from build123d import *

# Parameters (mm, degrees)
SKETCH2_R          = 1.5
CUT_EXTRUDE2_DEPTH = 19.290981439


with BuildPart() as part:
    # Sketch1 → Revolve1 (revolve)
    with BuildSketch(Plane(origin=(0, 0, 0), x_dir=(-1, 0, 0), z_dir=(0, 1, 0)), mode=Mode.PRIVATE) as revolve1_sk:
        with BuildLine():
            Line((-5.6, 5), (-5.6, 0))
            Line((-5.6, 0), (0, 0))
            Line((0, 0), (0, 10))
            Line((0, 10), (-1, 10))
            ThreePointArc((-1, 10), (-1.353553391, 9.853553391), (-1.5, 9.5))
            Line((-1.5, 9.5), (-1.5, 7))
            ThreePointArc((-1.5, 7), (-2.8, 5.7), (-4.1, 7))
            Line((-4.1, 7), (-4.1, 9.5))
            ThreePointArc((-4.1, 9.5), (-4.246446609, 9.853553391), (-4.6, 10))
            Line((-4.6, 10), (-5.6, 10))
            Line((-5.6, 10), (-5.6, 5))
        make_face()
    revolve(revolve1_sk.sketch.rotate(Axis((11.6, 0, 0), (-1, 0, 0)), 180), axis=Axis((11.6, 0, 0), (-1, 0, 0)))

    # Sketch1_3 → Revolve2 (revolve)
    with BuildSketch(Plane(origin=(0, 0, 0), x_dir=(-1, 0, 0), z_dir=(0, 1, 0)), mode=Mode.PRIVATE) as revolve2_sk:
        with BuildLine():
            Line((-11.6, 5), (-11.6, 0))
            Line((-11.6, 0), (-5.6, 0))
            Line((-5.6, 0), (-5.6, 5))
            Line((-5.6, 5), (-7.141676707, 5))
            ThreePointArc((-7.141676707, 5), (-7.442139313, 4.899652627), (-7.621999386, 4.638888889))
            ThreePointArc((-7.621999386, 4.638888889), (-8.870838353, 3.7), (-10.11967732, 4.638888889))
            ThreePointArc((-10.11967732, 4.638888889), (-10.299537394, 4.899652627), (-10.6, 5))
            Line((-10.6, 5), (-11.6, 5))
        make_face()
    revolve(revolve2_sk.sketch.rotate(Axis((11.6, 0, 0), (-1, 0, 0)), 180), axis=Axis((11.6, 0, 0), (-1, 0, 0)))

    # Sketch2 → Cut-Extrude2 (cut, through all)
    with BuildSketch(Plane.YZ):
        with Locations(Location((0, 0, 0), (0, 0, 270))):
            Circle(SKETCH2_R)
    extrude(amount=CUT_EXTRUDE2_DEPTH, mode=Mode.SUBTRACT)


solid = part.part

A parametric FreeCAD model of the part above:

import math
import FreeCAD as App
import Part
import Sketcher

V = App.Vector
Q = App.Units.Quantity

doc = App.newDocument("Part")
params = doc.addObject("Spreadsheet::Sheet", "Params")
for row, (alias, value) in enumerate([
    ("sketch1_radius", "0.5 mm"),
    ("sketch1_radius2", "1.3 mm"),
    ("sketch1_width", "1 mm"),
    ("sketch1_height", "10 mm"),
    ("sketch1_height2", "2.5 mm"),
    ("revolution_angle", "360 deg"),
    ("sketch2_radius", "0.5 mm"),
    ("sketch2_radius2", "1.3 mm"),
    ("sketch2_width", "6 mm"),
    ("sketch2_width2", "1 mm"),
    ("sketch2_height", "5 mm"),
    ("revolution2_angle", "360 deg"),
    ("sketch3_diameter", "3 mm"),
], start=1):
    params.set(f"A{row}", alias)
    params.set(f"B{row}", "=" + value)
    params.setAlias(f"B{row}", alias)

body = doc.addObject("PartDesign::Body", "Body")

sketch1 = doc.addObject("Sketcher::SketchObject", "Sketch")
body.addObject(sketch1)
sketch1.AttachmentSupport = (doc.XZ_Plane, [""])
sketch1.MapMode = "FlatFace"
sketch1.addGeometry([
    Part.LineSegment(V(5.6, 0, 0), V(0, 0, 0)),
    Part.LineSegment(V(0, 0, 0), V(0, 10, 0)),
    Part.LineSegment(V(0, 10, 0), V(1, 10, 0)),
    Part.ArcOfCircle(Part.Circle(V(1, 9.5, 0), V(0, 0, 1), 0.5), math.radians(0), math.radians(90)),
    Part.LineSegment(V(1.5, 9.5, 0), V(1.5, 7, 0)),
    Part.ArcOfCircle(Part.Circle(V(2.8, 7, 0), V(0, 0, 1), 1.3), math.radians(180), math.radians(360)),
    Part.LineSegment(V(4.1, 7, 0), V(4.1, 9.5, 0)),
    Part.ArcOfCircle(Part.Circle(V(4.6, 9.5, 0), V(0, 0, 1), 0.5), math.radians(90), math.radians(180)),
    Part.LineSegment(V(4.6, 10, 0), V(5.6, 10, 0)),
    Part.LineSegment(V(5.6, 10, 0), V(5.6, 0, 0)),
], False)
sketch1.addConstraint([
    Sketcher.Constraint("Coincident", 0, 2, 1, 1),
    Sketcher.Constraint("Coincident", 1, 2, 2, 1),
    Sketcher.Constraint("Tangent", 2, 2, 3, 2),
    Sketcher.Constraint("Tangent", 3, 1, 4, 1),
    Sketcher.Constraint("Tangent", 4, 2, 5, 1),
    Sketcher.Constraint("Tangent", 5, 2, 6, 1),
    Sketcher.Constraint("Tangent", 6, 2, 7, 2),
    Sketcher.Constraint("Tangent", 7, 1, 8, 1),
    Sketcher.Constraint("Coincident", 8, 2, 9, 1),
    Sketcher.Constraint("Coincident", 9, 2, 0, 1),
    Sketcher.Constraint("Horizontal", 0),
    Sketcher.Constraint("Vertical", 1),
    Sketcher.Constraint("Horizontal", 2),
    Sketcher.Constraint("Vertical", 4),
    Sketcher.Constraint("Vertical", 6),
    Sketcher.Constraint("Horizontal", 8),
    Sketcher.Constraint("Vertical", 9),
    Sketcher.Constraint("Coincident", 0, 2, -1, 1),
    Sketcher.Constraint("Equal", 3, 7),
    Sketcher.Constraint("Horizontal", 3, 3, 7, 3),
    Sketcher.Constraint("Equal", 2, 8),
    Sketcher.Constraint("Radius", 3, Q("0.5 mm")),
    Sketcher.Constraint("Radius", 5, Q("1.3 mm")),
    Sketcher.Constraint("DistanceX", 2, 1, 2, 2, Q("1 mm")),
    Sketcher.Constraint("DistanceY", 1, 1, 1, 2, Q("10 mm")),
    Sketcher.Constraint("DistanceY", 4, 2, 4, 1, Q("2.5 mm")),
])
sketch1.setExpression("Constraints[21]", "Params.sketch1_radius")
sketch1.setExpression("Constraints[22]", "Params.sketch1_radius2")
sketch1.setExpression("Constraints[23]", "Params.sketch1_width")
sketch1.setExpression("Constraints[24]", "Params.sketch1_height")
sketch1.setExpression("Constraints[25]", "Params.sketch1_height2")
revolution = doc.addObject("PartDesign::Revolution", "Revolution")
body.addObject(revolution)
revolution.Profile = sketch1
revolution.ReferenceAxis = (sketch1, ["H_Axis"])
revolution.setExpression("Angle", "Params.revolution_angle")

sketch2 = doc.addObject("Sketcher::SketchObject", "Sketch001")
body.addObject(sketch2)
sketch2.AttachmentSupport = (doc.XZ_Plane, [""])
sketch2.MapMode = "FlatFace"
sketch2.addGeometry([
    Part.LineSegment(V(11.6, 5, 0), V(11.6, 0, 0)),
    Part.LineSegment(V(11.6, 0, 0), V(5.6, 0, 0)),
    Part.LineSegment(V(5.6, 0, 0), V(5.6, 5, 0)),
    Part.LineSegment(V(5.6, 5, 0), V(7.14, 5, 0)),
    Part.ArcOfCircle(Part.Circle(V(7.14, 4.5, 0), V(0, 0, 1), 0.5), math.radians(16), math.radians(90)),
    Part.ArcOfCircle(Part.Circle(V(8.87, 5, 0), V(0, 0, 1), 1.3), math.radians(-164), math.radians(-16)),
    Part.ArcOfCircle(Part.Circle(V(10.6, 4.5, 0), V(0, 0, 1), 0.5), math.radians(90), math.radians(164)),
    Part.LineSegment(V(10.6, 5, 0), V(11.6, 5, 0)),
], False)
sketch2.addConstraint([
    Sketcher.Constraint("Coincident", 0, 2, 1, 1),
    Sketcher.Constraint("Coincident", 1, 2, 2, 1),
    Sketcher.Constraint("Coincident", 2, 2, 3, 1),
    Sketcher.Constraint("Tangent", 3, 2, 4, 2),
    Sketcher.Constraint("Tangent", 4, 1, 5, 1),
    Sketcher.Constraint("Tangent", 5, 2, 6, 2),
    Sketcher.Constraint("Tangent", 6, 1, 7, 1),
    Sketcher.Constraint("Coincident", 7, 2, 0, 1),
    Sketcher.Constraint("Vertical", 0),
    Sketcher.Constraint("Horizontal", 1),
    Sketcher.Constraint("Vertical", 2),
    Sketcher.Constraint("Horizontal", 3),
    Sketcher.Constraint("Horizontal", 7),
    Sketcher.Constraint("Equal", 4, 6),
    Sketcher.Constraint("PointOnObject", 0, 2, -1),
    Sketcher.Constraint("Horizontal", 4, 3, 6, 3),
    Sketcher.Constraint("Horizontal", 5, 3, 2, 2),
    Sketcher.Constraint("Radius", 4, Q("0.5 mm")),
    Sketcher.Constraint("Radius", 5, Q("1.3 mm")),
    Sketcher.Constraint("DistanceX", 1, 2, 1, 1, Q("6 mm")),
    Sketcher.Constraint("DistanceX", 7, 1, 7, 2, Q("1 mm")),
    Sketcher.Constraint("DistanceY", 0, 2, 0, 1, Q("5 mm")),
    Sketcher.Constraint("DistanceX", -1, 1, 6, 3, Q("10.6 mm")),
])
sketch2.setExpression("Constraints[17]", "Params.sketch2_radius")
sketch2.setExpression("Constraints[18]", "Params.sketch2_radius2")
sketch2.setExpression("Constraints[19]", "Params.sketch2_width")
sketch2.setExpression("Constraints[20]", "Params.sketch2_width2")
sketch2.setExpression("Constraints[21]", "Params.sketch2_height")
revolution2 = doc.addObject("PartDesign::Revolution", "Revolution001")
body.addObject(revolution2)
revolution2.Profile = sketch2
revolution2.ReferenceAxis = (sketch2, ["H_Axis"])
revolution2.setExpression("Angle", "Params.revolution2_angle")

sketch3 = doc.addObject("Sketcher::SketchObject", "Sketch002")
body.addObject(sketch3)
sketch3.AttachmentSupport = (doc.YZ_Plane, [""])
sketch3.MapMode = "FlatFace"
sketch3.addGeometry(Part.Circle(V(0, 0, 0), V(0, 0, 1), 1.5), False)
sketch3.addConstraint([
    Sketcher.Constraint("Coincident", 0, 3, -1, 1),
    Sketcher.Constraint("Diameter", 0, Q("3 mm")),
])
sketch3.setExpression("Constraints[1]", "Params.sketch3_diameter")
pocket1 = doc.addObject("PartDesign::Pocket", "Pocket")
body.addObject(pocket1)
pocket1.Profile = sketch3
pocket1.Type = "ThroughAll"
pocket1.Reversed = True

doc.recompute()
